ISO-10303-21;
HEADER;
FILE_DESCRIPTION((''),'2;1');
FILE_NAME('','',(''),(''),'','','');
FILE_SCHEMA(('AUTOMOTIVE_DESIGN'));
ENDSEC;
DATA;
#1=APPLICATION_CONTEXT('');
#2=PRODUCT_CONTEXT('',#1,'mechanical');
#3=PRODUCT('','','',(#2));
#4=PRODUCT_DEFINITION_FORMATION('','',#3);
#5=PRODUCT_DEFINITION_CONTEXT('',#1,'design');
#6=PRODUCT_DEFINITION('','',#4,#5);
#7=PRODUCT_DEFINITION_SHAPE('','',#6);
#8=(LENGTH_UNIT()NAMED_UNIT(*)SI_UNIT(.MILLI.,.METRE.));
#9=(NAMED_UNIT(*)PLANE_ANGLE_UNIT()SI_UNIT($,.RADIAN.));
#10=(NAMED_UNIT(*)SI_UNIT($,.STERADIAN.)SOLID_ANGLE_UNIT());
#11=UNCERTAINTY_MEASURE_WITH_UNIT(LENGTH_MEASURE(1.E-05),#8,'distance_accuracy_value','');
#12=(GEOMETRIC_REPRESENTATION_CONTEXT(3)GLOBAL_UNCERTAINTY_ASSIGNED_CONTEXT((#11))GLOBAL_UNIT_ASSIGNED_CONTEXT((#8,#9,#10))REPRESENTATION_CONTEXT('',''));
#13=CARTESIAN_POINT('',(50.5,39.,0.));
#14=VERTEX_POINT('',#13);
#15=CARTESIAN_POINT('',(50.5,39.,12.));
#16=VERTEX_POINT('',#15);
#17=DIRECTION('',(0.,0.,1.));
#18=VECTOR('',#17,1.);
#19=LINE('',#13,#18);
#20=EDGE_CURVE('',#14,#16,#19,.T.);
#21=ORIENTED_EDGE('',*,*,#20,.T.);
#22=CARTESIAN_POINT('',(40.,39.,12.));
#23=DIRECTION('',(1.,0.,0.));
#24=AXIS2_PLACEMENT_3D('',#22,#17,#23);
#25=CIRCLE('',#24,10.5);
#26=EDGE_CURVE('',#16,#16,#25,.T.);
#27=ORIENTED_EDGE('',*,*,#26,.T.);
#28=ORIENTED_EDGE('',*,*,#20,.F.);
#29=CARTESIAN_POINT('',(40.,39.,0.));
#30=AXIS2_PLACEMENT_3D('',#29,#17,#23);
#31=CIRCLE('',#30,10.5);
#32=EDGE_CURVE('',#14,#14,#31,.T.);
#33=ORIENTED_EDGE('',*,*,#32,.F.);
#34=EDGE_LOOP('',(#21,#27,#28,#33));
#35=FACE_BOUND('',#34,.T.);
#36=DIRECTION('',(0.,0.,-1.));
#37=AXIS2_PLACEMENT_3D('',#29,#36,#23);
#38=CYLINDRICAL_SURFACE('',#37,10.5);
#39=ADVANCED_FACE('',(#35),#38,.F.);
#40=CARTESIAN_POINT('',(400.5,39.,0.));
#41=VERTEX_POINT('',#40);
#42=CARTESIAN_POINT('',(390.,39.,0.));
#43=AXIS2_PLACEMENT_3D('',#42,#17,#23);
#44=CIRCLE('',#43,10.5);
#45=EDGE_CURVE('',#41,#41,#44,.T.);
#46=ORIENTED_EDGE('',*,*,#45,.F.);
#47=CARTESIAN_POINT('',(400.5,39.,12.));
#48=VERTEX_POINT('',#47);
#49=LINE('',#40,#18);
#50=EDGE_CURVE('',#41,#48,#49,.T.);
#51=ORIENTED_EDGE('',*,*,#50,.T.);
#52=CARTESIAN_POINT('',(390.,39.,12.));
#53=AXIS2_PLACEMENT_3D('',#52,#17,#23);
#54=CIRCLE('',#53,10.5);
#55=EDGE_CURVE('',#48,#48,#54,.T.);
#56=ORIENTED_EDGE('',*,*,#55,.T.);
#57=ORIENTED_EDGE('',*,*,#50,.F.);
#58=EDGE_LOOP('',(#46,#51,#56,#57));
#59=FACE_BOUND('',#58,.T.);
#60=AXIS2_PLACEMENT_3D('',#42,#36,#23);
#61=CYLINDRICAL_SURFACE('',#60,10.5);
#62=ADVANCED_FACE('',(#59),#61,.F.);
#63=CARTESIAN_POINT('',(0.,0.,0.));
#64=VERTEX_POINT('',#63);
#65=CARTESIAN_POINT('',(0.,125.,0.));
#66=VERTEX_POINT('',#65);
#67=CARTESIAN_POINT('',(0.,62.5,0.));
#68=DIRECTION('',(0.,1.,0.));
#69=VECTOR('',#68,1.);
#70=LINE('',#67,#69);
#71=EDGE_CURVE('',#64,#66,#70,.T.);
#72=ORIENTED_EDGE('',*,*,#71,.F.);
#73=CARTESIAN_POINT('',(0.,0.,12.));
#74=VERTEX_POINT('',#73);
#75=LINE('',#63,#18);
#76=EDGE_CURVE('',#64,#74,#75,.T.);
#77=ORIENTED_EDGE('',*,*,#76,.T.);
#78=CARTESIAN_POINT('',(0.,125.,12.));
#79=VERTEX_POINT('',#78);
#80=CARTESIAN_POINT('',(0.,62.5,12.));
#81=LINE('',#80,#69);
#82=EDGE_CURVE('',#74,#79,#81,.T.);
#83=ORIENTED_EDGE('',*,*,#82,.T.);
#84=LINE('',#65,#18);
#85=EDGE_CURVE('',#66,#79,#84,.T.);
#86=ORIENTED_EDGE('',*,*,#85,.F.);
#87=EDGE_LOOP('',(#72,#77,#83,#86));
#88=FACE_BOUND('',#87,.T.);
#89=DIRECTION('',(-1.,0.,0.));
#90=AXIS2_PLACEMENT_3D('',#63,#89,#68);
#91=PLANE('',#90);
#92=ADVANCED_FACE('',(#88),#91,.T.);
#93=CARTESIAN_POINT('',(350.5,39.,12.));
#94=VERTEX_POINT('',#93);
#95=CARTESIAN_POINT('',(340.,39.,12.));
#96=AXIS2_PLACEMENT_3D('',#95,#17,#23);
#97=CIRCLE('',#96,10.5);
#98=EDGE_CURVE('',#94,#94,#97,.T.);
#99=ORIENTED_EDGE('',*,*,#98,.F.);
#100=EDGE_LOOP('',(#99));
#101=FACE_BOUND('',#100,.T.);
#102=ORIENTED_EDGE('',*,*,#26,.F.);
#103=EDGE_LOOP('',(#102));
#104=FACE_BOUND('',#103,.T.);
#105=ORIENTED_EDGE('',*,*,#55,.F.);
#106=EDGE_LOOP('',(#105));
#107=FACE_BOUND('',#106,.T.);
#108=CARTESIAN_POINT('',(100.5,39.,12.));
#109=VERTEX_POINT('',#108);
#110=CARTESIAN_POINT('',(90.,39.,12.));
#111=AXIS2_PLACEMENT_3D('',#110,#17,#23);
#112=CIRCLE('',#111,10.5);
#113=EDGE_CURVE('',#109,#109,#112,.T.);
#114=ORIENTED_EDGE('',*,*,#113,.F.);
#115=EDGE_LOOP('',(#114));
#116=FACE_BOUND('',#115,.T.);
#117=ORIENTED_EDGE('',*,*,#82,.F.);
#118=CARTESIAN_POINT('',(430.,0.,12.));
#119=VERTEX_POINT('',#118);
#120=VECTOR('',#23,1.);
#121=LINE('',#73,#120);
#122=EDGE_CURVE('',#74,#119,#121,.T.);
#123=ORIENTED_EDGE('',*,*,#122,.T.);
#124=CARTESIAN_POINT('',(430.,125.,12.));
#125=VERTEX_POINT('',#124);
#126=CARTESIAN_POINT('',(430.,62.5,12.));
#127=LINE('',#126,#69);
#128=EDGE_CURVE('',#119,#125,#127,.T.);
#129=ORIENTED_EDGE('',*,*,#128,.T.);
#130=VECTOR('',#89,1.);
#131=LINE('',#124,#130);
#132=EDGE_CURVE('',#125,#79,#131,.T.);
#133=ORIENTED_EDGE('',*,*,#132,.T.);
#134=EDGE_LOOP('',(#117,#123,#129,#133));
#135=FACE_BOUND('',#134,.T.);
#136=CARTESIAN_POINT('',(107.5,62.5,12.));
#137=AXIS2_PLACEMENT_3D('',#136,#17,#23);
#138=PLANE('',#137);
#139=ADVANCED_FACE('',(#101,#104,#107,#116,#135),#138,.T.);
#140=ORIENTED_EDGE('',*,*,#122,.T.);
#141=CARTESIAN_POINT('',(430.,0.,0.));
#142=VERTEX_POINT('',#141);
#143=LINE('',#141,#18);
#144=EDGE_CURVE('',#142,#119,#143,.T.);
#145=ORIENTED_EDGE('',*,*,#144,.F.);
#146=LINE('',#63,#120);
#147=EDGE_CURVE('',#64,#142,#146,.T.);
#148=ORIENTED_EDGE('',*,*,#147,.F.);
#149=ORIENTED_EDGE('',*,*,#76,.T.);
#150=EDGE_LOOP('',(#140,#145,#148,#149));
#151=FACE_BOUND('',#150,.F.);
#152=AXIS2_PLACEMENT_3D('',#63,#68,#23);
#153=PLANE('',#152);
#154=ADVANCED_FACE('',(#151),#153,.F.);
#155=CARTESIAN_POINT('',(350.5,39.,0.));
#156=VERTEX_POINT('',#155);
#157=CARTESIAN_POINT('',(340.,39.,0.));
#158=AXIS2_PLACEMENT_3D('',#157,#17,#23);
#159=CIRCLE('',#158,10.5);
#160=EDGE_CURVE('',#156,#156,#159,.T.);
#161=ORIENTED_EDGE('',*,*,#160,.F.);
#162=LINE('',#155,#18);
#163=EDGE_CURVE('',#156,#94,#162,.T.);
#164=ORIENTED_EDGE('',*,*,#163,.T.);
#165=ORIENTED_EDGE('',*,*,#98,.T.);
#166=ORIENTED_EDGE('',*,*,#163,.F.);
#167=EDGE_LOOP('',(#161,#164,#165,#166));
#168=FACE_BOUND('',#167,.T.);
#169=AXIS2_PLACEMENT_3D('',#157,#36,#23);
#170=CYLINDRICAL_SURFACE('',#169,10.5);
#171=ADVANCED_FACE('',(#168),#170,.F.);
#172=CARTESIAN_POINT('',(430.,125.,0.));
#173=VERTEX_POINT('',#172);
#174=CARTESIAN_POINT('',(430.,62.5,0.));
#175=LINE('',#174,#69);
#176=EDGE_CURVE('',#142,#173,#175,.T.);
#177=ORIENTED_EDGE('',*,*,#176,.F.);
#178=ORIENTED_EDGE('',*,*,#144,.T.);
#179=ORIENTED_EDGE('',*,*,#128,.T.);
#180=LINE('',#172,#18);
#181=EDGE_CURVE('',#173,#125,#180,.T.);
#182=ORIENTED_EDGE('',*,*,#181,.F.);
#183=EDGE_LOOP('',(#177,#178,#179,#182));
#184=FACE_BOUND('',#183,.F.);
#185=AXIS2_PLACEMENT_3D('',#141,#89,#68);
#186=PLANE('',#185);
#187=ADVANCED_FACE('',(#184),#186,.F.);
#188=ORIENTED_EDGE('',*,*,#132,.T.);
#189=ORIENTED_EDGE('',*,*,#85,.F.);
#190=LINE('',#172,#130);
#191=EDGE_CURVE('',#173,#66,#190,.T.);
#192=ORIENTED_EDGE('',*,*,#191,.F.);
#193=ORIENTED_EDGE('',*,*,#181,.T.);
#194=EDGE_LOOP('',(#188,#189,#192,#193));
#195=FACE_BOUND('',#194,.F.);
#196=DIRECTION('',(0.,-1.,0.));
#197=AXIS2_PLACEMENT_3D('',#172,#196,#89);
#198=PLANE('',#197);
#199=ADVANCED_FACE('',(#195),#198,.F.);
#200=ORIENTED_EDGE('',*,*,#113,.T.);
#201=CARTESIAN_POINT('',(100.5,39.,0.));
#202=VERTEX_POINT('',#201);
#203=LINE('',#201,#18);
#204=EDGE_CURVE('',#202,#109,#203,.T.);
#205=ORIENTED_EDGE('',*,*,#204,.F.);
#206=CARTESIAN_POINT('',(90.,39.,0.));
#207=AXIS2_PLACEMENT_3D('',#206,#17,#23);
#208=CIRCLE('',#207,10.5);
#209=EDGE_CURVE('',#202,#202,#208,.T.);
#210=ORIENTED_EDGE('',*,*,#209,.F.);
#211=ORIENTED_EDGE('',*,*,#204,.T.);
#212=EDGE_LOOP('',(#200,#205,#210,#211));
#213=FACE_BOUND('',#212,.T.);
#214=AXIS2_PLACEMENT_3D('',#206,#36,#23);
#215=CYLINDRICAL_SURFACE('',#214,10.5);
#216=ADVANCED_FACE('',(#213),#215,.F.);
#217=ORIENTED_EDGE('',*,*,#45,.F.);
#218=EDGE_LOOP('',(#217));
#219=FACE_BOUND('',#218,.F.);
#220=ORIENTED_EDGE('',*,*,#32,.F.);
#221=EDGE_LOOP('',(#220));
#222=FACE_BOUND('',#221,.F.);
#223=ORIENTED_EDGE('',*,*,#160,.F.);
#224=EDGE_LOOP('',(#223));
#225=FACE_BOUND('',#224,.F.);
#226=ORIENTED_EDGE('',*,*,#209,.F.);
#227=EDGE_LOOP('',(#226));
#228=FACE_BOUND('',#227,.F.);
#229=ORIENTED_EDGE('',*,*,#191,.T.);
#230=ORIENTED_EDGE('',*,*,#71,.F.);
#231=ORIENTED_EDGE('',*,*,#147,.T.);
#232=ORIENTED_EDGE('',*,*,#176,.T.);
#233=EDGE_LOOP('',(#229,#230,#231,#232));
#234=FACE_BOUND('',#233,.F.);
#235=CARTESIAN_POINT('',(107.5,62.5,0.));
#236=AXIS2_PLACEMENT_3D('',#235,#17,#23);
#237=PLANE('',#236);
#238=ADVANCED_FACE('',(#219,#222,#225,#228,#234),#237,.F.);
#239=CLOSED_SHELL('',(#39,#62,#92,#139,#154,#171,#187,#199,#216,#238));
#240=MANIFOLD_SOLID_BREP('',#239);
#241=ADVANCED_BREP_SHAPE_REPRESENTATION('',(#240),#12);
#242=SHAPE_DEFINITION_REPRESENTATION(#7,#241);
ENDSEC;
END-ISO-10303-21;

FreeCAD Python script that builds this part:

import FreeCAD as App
import Part
import Sketcher

V = App.Vector
Q = App.Units.Quantity

doc = App.newDocument("Part")
body = doc.addObject("PartDesign::Body", "Body")

# Sketch on XY plane
sketch1 = doc.addObject("Sketcher::SketchObject", "Sketch")
body.addObject(sketch1)
sketch1.AttachmentSupport = (doc.XY_Plane, [""])
sketch1.MapMode = "FlatFace"
sketch1.addGeometry([
    Part.LineSegment(V(0, 125, 0), V(0, 0, 0)),  # 0
    Part.LineSegment(V(0, 0, 0), V(430, 0, 0)),  # 1
    Part.LineSegment(V(430, 0, 0), V(430, 125, 0)),  # 2
    Part.LineSegment(V(430, 125, 0), V(0, 125, 0)),  # 3
    Part.Circle(V(40, 39, 0), V(0, 0, 1), 10),  # 4
    Part.Circle(V(90, 39, 0), V(0, 0, 1), 10),  # 5
    Part.Circle(V(340, 39, 0), V(0, 0, 1), 10),  # 6
    Part.Circle(V(390, 39, 0), V(0, 0, 1), 10),  # 7
], False)
sketch1.addConstraint([
    Sketcher.Constraint("Coincident", 0, 2, 1, 1),
    Sketcher.Constraint("Coincident", 1, 2, 2, 1),
    Sketcher.Constraint("Coincident", 2, 2, 3, 1),
    Sketcher.Constraint("Coincident", 3, 2, 0, 1),
    Sketcher.Constraint("Vertical", 0),
    Sketcher.Constraint("Horizontal", 1),
    Sketcher.Constraint("Vertical", 2),
    Sketcher.Constraint("Horizontal", 3),
    Sketcher.Constraint("Coincident", 0, 2, -1, 1),
    Sketcher.Constraint("Equal", 4, 5),
    Sketcher.Constraint("Equal", 5, 6),
    Sketcher.Constraint("Equal", 6, 7),
    Sketcher.Constraint("Horizontal", 4, 3, 5, 3),
    Sketcher.Constraint("Horizontal", 5, 3, 6, 3),
    Sketcher.Constraint("Horizontal", 6, 3, 7, 3),
    Sketcher.Constraint("Diameter", 4, Q("21 mm")),
    Sketcher.Constraint("DistanceX", 1, 1, 1, 2, Q("430 mm")),
    Sketcher.Constraint("DistanceY", 0, 2, 0, 1, Q("125 mm")),
    Sketcher.Constraint("DistanceX", -1, 1, 4, 3, Q("40 mm")),
    Sketcher.Constraint("DistanceY", -1, 1, 4, 3, Q("39 mm")),
    Sketcher.Constraint("DistanceX", -1, 1, 5, 3, Q("90 mm")),
    Sketcher.Constraint("DistanceX", -1, 1, 6, 3, Q("340 mm")),
    Sketcher.Constraint("DistanceX", -1, 1, 7, 3, Q("390 mm")),
])
pad1 = doc.addObject("PartDesign::Pad", "Pad")
body.addObject(pad1)
pad1.Profile = sketch1
pad1.Length = 12

doc.recompute()
